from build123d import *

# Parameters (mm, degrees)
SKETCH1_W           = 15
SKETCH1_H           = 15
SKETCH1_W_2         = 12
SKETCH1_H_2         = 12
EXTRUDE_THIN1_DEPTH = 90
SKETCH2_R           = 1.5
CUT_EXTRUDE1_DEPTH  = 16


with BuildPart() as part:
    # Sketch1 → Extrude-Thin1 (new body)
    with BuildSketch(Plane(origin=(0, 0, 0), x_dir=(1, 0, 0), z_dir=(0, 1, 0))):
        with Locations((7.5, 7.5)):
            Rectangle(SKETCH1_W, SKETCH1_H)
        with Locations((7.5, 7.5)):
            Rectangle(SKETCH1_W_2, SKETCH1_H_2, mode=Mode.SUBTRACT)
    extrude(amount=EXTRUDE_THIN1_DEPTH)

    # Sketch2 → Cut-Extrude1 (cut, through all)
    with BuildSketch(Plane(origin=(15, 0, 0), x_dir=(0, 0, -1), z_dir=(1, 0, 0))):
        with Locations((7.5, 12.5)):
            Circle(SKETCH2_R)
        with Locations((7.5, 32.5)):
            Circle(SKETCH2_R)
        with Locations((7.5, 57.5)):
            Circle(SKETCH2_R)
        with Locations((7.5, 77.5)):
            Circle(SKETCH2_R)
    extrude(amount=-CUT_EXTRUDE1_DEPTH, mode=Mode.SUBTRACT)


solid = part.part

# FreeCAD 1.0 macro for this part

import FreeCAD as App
import Part
import Sketcher
from FreeCAD import Vector
Q = App.Units.Quantity

doc = App.newDocument("Part")
body = doc.addObject("PartDesign::Body", "Body")

sketch1 = body.newObject("Sketcher::SketchObject", "Sketch")
sketch1.AttachmentSupport = (doc.getObject("XZ_Plane"), [""])
sketch1.MapMode = "FlatFace"
sketch1.addGeometry([
    Part.LineSegment(Vector(0, -15, 0), Vector(0, 0, 0)),
    Part.LineSegment(Vector(0, 0, 0), Vector(15, 0, 0)),
    Part.LineSegment(Vector(15, 0, 0), Vector(15, -15, 0)),
    Part.LineSegment(Vector(15, -15, 0), Vector(0, -15, 0)),
    Part.LineSegment(Vector(14, -2, 0), Vector(2, -2, 0)),
    Part.LineSegment(Vector(2, -2, 0), Vector(2, -14, 0)),
    Part.LineSegment(Vector(2, -14, 0), Vector(14, -14, 0)),
    Part.LineSegment(Vector(14, -14, 0), Vector(14, -2, 0)),
], False)
sketch1.addConstraint([
    Sketcher.Constraint("Coincident", 0, 2, 1, 1),
    Sketcher.Constraint("Coincident", 1, 2, 2, 1),
    Sketcher.Constraint("Coincident", 2, 2, 3, 1),
    Sketcher.Constraint("Coincident", 3, 2, 0, 1),
    Sketcher.Constraint("Coincident", 4, 2, 5, 1),
    Sketcher.Constraint("Coincident", 5, 2, 6, 1),
    Sketcher.Constraint("Coincident", 6, 2, 7, 1),
    Sketcher.Constraint("Coincident", 7, 2, 4, 1),
    Sketcher.Constraint("Vertical", 0),
    Sketcher.Constraint("Horizontal", 1),
    Sketcher.Constraint("Vertical", 2),
    Sketcher.Constraint("Horizontal", 3),
    Sketcher.Constraint("Horizontal", 4),
    Sketcher.Constraint("Vertical", 5),
    Sketcher.Constraint("Horizontal", 6),
    Sketcher.Constraint("Vertical", 7),
    Sketcher.Constraint("Coincident", 0, 2, -1, 1),
    Sketcher.Constraint("Equal", 3, 0),
    Sketcher.Constraint("Equal", 6, 5),
    Sketcher.Constraint("DistanceX", 1, 1, 1, 2, Q("15 mm")),
    Sketcher.Constraint("DistanceX", 4, 2, 4, 1, Q("12 mm")),
    Sketcher.Constraint("DistanceX", -1, 1, 4, 2, Q("1.5 mm")),
    Sketcher.Constraint("DistanceY", 4, 2, -1, 1, Q("1.5 mm")),
])
pad1 = body.newObject("PartDesign::Pad", "Pad")
pad1.Profile = sketch1
pad1.Length = 90
pad1.Reversed = True

sketch2 = body.newObject("Sketcher::SketchObject", "Sketch001")
sketch2.AttachmentSupport = (doc.getObject("YZ_Plane"), [""])
sketch2.MapMode = "FlatFace"
sketch2.AttachmentOffset = App.Placement(Vector(0, 0, 15), App.Rotation())
sketch2.addGeometry([
    Part.Circle(Vector(12.5, -7.5, 0), Vector(0, 0, 1), 1.5),
    Part.Circle(Vector(32.5, -7.5, 0), Vector(0, 0, 1), 1.5),
    Part.Circle(Vector(57.5, -7.5, 0), Vector(0, 0, 1), 1.5),
    Part.Circle(Vector(77.5, -7.5, 0), Vector(0, 0, 1), 1.5),
], False)
sketch2.addConstraint([
    Sketcher.Constraint("Equal", 0, 1),
    Sketcher.Constraint("Equal", 1, 2),
    Sketcher.Constraint("Equal", 2, 3),
    Sketcher.Constraint("Horizontal", 0, 3, 1, 3),
    Sketcher.Constraint("Horizontal", 1, 3, 2, 3),
    Sketcher.Constraint("Horizontal", 2, 3, 3, 3),
    Sketcher.Constraint("Diameter", 0, Q("3 mm")),
    Sketcher.Constraint("DistanceX", 0, 3, 1, 3, Q("20 mm")),
    Sketcher.Constraint("DistanceX", 1, 3, 2, 3, Q("25 mm")),
    Sketcher.Constraint("DistanceX", 2, 3, 3, 3, Q("20 mm")),
    Sketcher.Constraint("DistanceX", -1, 1, 0, 3, Q("12.5 mm")),
    Sketcher.Constraint("DistanceY", 0, 3, -1, 1, Q("7.5 mm")),
])
pocket1 = body.newObject("PartDesign::Pocket", "Pocket")
pocket1.Profile = sketch2
pocket1.Type = "ThroughAll"

doc.recompute()
